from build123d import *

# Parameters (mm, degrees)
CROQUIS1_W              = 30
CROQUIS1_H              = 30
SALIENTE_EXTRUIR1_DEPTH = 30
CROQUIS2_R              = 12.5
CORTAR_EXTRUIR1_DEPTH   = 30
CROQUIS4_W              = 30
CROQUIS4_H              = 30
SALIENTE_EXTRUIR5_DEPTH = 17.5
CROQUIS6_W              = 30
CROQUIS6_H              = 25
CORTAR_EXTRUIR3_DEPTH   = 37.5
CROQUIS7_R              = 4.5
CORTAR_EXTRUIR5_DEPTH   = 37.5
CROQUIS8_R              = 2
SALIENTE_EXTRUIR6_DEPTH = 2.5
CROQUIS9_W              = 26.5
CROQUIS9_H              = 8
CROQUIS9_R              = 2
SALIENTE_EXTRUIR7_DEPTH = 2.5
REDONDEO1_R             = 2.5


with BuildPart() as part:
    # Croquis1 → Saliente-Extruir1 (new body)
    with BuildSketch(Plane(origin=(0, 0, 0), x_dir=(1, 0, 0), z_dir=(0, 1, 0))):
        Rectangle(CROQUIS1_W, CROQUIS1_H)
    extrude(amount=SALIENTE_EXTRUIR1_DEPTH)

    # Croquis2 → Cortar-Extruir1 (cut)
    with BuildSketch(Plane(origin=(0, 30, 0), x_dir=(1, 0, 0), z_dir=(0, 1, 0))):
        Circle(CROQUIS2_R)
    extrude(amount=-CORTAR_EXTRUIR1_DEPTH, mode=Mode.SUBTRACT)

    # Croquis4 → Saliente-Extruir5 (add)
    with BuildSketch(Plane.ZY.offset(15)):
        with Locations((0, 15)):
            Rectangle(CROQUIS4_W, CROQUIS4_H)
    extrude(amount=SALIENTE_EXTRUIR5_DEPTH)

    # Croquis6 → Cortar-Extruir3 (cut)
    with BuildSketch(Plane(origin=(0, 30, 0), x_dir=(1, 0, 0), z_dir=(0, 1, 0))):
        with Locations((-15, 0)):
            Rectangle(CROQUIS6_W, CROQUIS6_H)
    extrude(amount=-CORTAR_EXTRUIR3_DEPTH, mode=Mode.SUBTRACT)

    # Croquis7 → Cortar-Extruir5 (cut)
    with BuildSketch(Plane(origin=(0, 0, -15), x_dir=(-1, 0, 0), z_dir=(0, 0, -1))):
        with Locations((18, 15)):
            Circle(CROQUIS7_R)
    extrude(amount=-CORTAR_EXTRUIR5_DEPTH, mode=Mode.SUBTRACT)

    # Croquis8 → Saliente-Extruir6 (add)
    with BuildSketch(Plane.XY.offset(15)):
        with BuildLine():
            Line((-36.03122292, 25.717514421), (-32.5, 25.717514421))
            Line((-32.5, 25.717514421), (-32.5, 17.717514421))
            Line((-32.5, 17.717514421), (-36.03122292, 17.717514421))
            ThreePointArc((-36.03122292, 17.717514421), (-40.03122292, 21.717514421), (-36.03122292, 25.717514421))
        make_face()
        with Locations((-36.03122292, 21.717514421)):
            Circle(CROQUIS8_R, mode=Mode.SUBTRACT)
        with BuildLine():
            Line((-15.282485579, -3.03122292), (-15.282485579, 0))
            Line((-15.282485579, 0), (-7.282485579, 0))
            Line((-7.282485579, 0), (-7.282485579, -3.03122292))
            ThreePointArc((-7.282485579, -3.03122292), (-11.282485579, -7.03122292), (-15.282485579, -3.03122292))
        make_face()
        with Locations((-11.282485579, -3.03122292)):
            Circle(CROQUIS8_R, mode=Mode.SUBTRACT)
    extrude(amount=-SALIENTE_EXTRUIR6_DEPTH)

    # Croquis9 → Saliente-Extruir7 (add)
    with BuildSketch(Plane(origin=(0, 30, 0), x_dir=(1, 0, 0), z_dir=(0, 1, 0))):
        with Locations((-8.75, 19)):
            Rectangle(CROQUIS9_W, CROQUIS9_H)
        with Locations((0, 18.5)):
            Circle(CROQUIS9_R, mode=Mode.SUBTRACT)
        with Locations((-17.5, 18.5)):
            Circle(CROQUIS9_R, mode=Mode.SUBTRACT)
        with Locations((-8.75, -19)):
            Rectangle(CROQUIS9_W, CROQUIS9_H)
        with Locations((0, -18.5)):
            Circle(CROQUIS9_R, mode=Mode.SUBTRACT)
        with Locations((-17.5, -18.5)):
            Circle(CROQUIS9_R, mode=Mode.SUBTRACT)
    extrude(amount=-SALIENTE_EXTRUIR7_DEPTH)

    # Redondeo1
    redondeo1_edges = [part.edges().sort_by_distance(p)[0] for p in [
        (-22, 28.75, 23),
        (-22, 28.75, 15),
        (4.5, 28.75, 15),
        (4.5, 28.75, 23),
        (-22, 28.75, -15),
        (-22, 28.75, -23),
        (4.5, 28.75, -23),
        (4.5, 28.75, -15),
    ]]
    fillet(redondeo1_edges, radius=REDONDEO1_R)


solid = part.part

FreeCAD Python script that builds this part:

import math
import FreeCAD as App
import Part
import Sketcher
Q = App.Units.Quantity


def edges_at(feature, points):
    """Names of the edges that pass closest to the given points."""
    edges = feature.Shape.Edges
    near = lambda p: min(range(len(edges)), key=lambda i: edges[i].distToShape(Part.Vertex(*p))[0])
    return sorted({f"Edge{near(p) + 1}" for p in points})


def add_polygon(sketch, points):
    """Adds a closed chain of lines whose ends are joined by coincident constraints."""
    first, n = sketch.GeometryCount, len(points)
    for a, b in zip(points, points[1:] + points[:1]):
        sketch.addGeometry(Part.LineSegment(App.Vector(*a, 0), App.Vector(*b, 0)), False)
    for i in range(n):
        sketch.addConstraint(Sketcher.Constraint("Coincident", first + i, 2, first + (i + 1) % n, 1))

doc = App.newDocument("Part")
body = doc.addObject("PartDesign::Body", "Body")

# Sketch on XZ plane
sketch1 = body.newObject("Sketcher::SketchObject", "Sketch")
sketch1.AttachmentSupport = (doc.getObject("XZ_Plane"), [""])
sketch1.MapMode = "FlatFace"
add_polygon(sketch1, [(-15, -15), (-15, 15), (15, 15), (15, -15)])  # lines 0-3
sketch1.addConstraint([
    Sketcher.Constraint("Vertical", 0),
    Sketcher.Constraint("Horizontal", 1),
    Sketcher.Constraint("Vertical", 2),
    Sketcher.Constraint("Horizontal", 3),
    Sketcher.Constraint("Symmetric", 0, 2, 2, 2, -1, 1),
    Sketcher.Constraint("Equal", 3, 0),
    Sketcher.Constraint("DistanceX", 1, 1, 1, 2, Q("30 mm")),
])
pad1 = body.newObject("PartDesign::Pad", "Pad")
pad1.Profile = sketch1
pad1.Length = 30
pad1.Reversed = True

# Sketch on XZ plane
sketch2 = body.newObject("Sketcher::SketchObject", "Sketch001")
sketch2.AttachmentSupport = (doc.getObject("XZ_Plane"), [""])
sketch2.MapMode = "FlatFace"
sketch2.AttachmentOffset = App.Placement(App.Vector(0, 0, -30), App.Rotation())
sketch2.addGeometry(Part.Circle(App.Vector(0, 0, 0), App.Vector(0, 0, 1), 12), False)
sketch2.addConstraint([
    Sketcher.Constraint("Coincident", 0, 3, -1, 1),
    Sketcher.Constraint("Diameter", 0, Q("25 mm")),
])
pocket1 = body.newObject("PartDesign::Pocket", "Pocket")
pocket1.Profile = sketch2
pocket1.Length = 30
pocket1.Reversed = True

# Sketch on YZ plane
sketch3 = body.newObject("Sketcher::SketchObject", "Sketch002")
sketch3.AttachmentSupport = (doc.getObject("YZ_Plane"), [""])
sketch3.MapMode = "FlatFace"
sketch3.AttachmentOffset = App.Placement(App.Vector(0, 0, -15), App.Rotation())
add_polygon(sketch3, [(30, -15), (0, -15), (0, 15), (30, 15)])  # lines 0-3
sketch3.addConstraint([
    Sketcher.Constraint("Horizontal", 0),
    Sketcher.Constraint("Vertical", 1),
    Sketcher.Constraint("Horizontal", 2),
    Sketcher.Constraint("Vertical", 3),
    Sketcher.Constraint("Symmetric", 0, 2, 1, 2, -1, 1),
    Sketcher.Constraint("Equal", 2, 1),
    Sketcher.Constraint("DistanceX", 0, 2, 0, 1, Q("30 mm")),
])
pad2 = body.newObject("PartDesign::Pad", "Pad001")
pad2.Profile = sketch3
pad2.Length = 17.5
pad2.Reversed = True

# Sketch on XZ plane
sketch4 = body.newObject("Sketcher::SketchObject", "Sketch003")
sketch4.AttachmentSupport = (doc.getObject("XZ_Plane"), [""])
sketch4.MapMode = "FlatFace"
sketch4.AttachmentOffset = App.Placement(App.Vector(0, 0, -30), App.Rotation())
add_polygon(sketch4, [(-30, -12), (-30, 12), (0, 12), (0, -12)])  # lines 0-3
sketch4.addConstraint([
    Sketcher.Constraint("Vertical", 0),
    Sketcher.Constraint("Horizontal", 1),
    Sketcher.Constraint("Vertical", 2),
    Sketcher.Constraint("Horizontal", 3),
    Sketcher.Constraint("Symmetric", 1, 2, 2, 2, -1, 1),
    Sketcher.Constraint("DistanceX", 1, 1, 1, 2, Q("30 mm")),
    Sketcher.Constraint("DistanceY", 0, 1, 0, 2, Q("25 mm")),
])
pocket2 = body.newObject("PartDesign::Pocket", "Pocket001")
pocket2.Profile = sketch4
pocket2.Length = 37.5
pocket2.Reversed = True

# Sketch on XY plane
sketch5 = body.newObject("Sketcher::SketchObject", "Sketch004")
sketch5.AttachmentSupport = (doc.getObject("XY_Plane"), [""])
sketch5.MapMode = "FlatFace"
sketch5.AttachmentOffset = App.Placement(App.Vector(0, 0, -15), App.Rotation())
sketch5.addGeometry(Part.Circle(App.Vector(-18, 15, 0), App.Vector(0, 0, 1), 4.5), False)
sketch5.addConstraint([
    Sketcher.Constraint("Diameter", 0, Q("9 mm")),
    Sketcher.Constraint("DistanceX", 0, 3, -1, 1, Q("18 mm")),
    Sketcher.Constraint("DistanceY", -1, 1, 0, 3, Q("15 mm")),
])
pocket3 = body.newObject("PartDesign::Pocket", "Pocket002")
pocket3.Profile = sketch5
pocket3.Length = 37.5
pocket3.Reversed = True

# Sketch on XY plane
sketch6 = body.newObject("Sketcher::SketchObject", "Sketch005")
sketch6.AttachmentSupport = (doc.getObject("XY_Plane"), [""])
sketch6.MapMode = "FlatFace"
sketch6.AttachmentOffset = App.Placement(App.Vector(0, 0, 15), App.Rotation())
sketch6.addGeometry([
    Part.LineSegment(App.Vector(-32.5, 25.7, 0), App.Vector(-36, 25.7, 0)),  # 0
    Part.ArcOfCircle(Part.Circle(App.Vector(-36, 21.7, 0), App.Vector(0, 0, 1), 4), math.radians(90), math.radians(270)),  # 1
    Part.LineSegment(App.Vector(-36, 17.7, 0), App.Vector(-32.5, 17.7, 0)),  # 2
    Part.LineSegment(App.Vector(-32.5, 17.7, 0), App.Vector(-32.5, 25.7, 0)),  # 3
    Part.Circle(App.Vector(-36, 21.7, 0), App.Vector(0, 0, 1), 2),  # 4
    Part.LineSegment(App.Vector(-15.3, 0, 0), App.Vector(-15.3, -3, 0)),  # 5
    Part.ArcOfCircle(Part.Circle(App.Vector(-11.3, -3, 0), App.Vector(0, 0, 1), 4), math.radians(180), math.radians(360)),  # 6
    Part.LineSegment(App.Vector(-7.3, -3, 0), App.Vector(-7.3, 0, 0)),  # 7
    Part.LineSegment(App.Vector(-7.3, 0, 0), App.Vector(-15.3, 0, 0)),  # 8
    Part.Circle(App.Vector(-11.3, -3, 0), App.Vector(0, 0, 1), 2),  # 9
], False)
sketch6.addConstraint([
    Sketcher.Constraint("Tangent", 0, 2, 1, 1),
    Sketcher.Constraint("Tangent", 1, 2, 2, 1),
    Sketcher.Constraint("Coincident", 2, 2, 3, 1),
    Sketcher.Constraint("Coincident", 3, 2, 0, 1),
    Sketcher.Constraint("Tangent", 5, 2, 6, 1),
    Sketcher.Constraint("Tangent", 6, 2, 7, 1),
    Sketcher.Constraint("Coincident", 7, 2, 8, 1),
    Sketcher.Constraint("Coincident", 8, 2, 5, 1),
    Sketcher.Constraint("Horizontal", 0),
    Sketcher.Constraint("Horizontal", 2),
    Sketcher.Constraint("Vertical", 3),
    Sketcher.Constraint("Vertical", 5),
    Sketcher.Constraint("Vertical", 7),
    Sketcher.Constraint("Horizontal", 8),
    Sketcher.Constraint("Coincident", 4, 3, 1, 3),
    Sketcher.Constraint("Coincident", 9, 3, 6, 3),
    Sketcher.Constraint("Equal", 1, 6),
    Sketcher.Constraint("Equal", 4, 9),
    Sketcher.Constraint("PointOnObject", 7, 2, -1),
    Sketcher.Constraint("Diameter", 4, Q("4 mm")),
    Sketcher.Constraint("Radius", 1, Q("4 mm")),
    Sketcher.Constraint("DistanceX", 2, 2, -1, 1, Q("32.5 mm")),
    Sketcher.Constraint("DistanceX", 0, 2, 0, 1, Q("3.531223 mm")),
    Sketcher.Constraint("DistanceY", 5, 2, 5, 1, Q("3.031223 mm")),
    Sketcher.Constraint("DistanceY", -1, 1, 1, 3, Q("21.717514 mm")),
    Sketcher.Constraint("DistanceX", 6, 3, -1, 1, Q("11.282486 mm")),
])
pad3 = body.newObject("PartDesign::Pad", "Pad002")
pad3.Profile = sketch6
pad3.Length = 2.5
pad3.Reversed = True

# Sketch on XZ plane
sketch7 = body.newObject("Sketcher::SketchObject", "Sketch006")
sketch7.AttachmentSupport = (doc.getObject("XZ_Plane"), [""])
sketch7.MapMode = "FlatFace"
sketch7.AttachmentOffset = App.Placement(App.Vector(0, 0, -30), App.Rotation())
add_polygon(sketch7, [(-22, -23), (-22, -15), (4.5, -15), (4.5, -23)])  # lines 0-3
sketch7.addGeometry(Part.Circle(App.Vector(-17.5, -18.5, 0), App.Vector(0, 0, 1), 2), False)  # 4
sketch7.addGeometry(Part.Circle(App.Vector(0, -18.5, 0), App.Vector(0, 0, 1), 2), False)  # 5
add_polygon(sketch7, [(-22, 15), (-22, 23), (4.5, 23), (4.5, 15)])  # lines 6-9
sketch7.addGeometry(Part.Circle(App.Vector(-17.5, 18.5, 0), App.Vector(0, 0, 1), 2), False)  # 10
sketch7.addGeometry(Part.Circle(App.Vector(0, 18.5, 0), App.Vector(0, 0, 1), 2), False)  # 11
sketch7.addConstraint([
    Sketcher.Constraint("Vertical", 0),
    Sketcher.Constraint("Horizontal", 1),
    Sketcher.Constraint("Vertical", 2),
    Sketcher.Constraint("Horizontal", 3),
    Sketcher.Constraint("Vertical", 6),
    Sketcher.Constraint("Horizontal", 7),
    Sketcher.Constraint("Vertical", 8),
    Sketcher.Constraint("Horizontal", 9),
    Sketcher.Constraint("Equal", 4, 5),
    Sketcher.Constraint("Equal", 5, 10),
    Sketcher.Constraint("Equal", 10, 11),
    Sketcher.Constraint("Symmetric", 5, 3, 11, 3, -1, 1),
    Sketcher.Constraint("Symmetric", 4, 3, 10, 3, -1),
    Sketcher.Constraint("Symmetric", 3, 2, 6, 2, -1),
    Sketcher.Constraint("Symmetric", 1, 2, 8, 2, -1),
    Sketcher.Constraint("PointOnObject", 5, 3, -2),
    Sketcher.Constraint("Horizontal", 4, 3, 5, 3),
    Sketcher.Constraint("Diameter", 4, Q("4 mm")),
    Sketcher.Constraint("DistanceY", 0, 1, 0, 2, Q("8 mm")),
    Sketcher.Constraint("DistanceX", 1, 1, 1, 2, Q("26.5 mm")),
    Sketcher.Constraint("DistanceX", 0, 2, -1, 1, Q("22 mm")),
    Sketcher.Constraint("DistanceY", 0, 2, -1, 1, Q("15 mm")),
    Sketcher.Constraint("DistanceY", 4, 3, 10, 3, Q("37 mm")),
    Sketcher.Constraint("DistanceX", 4, 3, 1, 2, Q("22 mm")),
])
pad4 = body.newObject("PartDesign::Pad", "Pad003")
pad4.Profile = sketch7
pad4.Length = 2.5
doc.recompute()

fillet = body.newObject("PartDesign::Fillet", "Fillet")
fillet.Base = (pad4, edges_at(pad4, [
    (-22, 28.75, 23),
    (-22, 28.75, 15),
    (4.5, 28.75, 15),
    (4.5, 28.75, 23),
    (-22, 28.75, -15),
    (-22, 28.75, -23),
    (4.5, 28.75, -23),
    (4.5, 28.75, -15),
]))
fillet.Radius = 2.5

doc.recompute()
